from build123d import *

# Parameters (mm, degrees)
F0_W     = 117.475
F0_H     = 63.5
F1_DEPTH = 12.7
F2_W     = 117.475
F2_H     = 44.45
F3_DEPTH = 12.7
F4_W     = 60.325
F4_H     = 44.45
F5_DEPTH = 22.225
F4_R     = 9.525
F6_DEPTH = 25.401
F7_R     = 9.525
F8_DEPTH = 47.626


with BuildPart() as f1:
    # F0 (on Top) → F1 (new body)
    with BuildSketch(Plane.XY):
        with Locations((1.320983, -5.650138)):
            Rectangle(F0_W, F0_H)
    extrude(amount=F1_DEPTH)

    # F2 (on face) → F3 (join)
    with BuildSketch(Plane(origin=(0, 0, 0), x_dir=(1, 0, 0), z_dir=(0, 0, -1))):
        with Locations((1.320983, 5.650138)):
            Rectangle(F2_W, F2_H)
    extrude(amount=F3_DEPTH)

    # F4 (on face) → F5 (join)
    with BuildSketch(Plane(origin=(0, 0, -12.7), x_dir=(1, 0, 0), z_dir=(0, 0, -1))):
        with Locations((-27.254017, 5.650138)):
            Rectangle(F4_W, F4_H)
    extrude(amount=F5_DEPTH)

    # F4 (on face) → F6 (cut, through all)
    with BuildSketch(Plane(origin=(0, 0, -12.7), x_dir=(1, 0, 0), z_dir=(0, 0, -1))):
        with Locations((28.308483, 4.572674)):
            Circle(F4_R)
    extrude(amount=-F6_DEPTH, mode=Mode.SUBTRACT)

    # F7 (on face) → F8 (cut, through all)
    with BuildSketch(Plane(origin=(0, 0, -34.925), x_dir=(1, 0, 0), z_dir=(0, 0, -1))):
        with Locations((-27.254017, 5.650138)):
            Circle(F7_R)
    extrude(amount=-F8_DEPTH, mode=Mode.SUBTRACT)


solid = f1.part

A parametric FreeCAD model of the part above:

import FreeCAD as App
import Part
import Sketcher
from FreeCAD import Vector
Q = App.Units.Quantity

doc = App.newDocument("Part")
body = doc.addObject("PartDesign::Body", "Body")

# Sketch on XY plane
sketch1 = doc.addObject("Sketcher::SketchObject", "Sketch")
body.addObject(sketch1)
sketch1.AttachmentSupport = (doc.XY_Plane, [""])
sketch1.MapMode = "FlatFace"
sketch1.addGeometry([
    Part.LineSegment(Vector(-57, 26, 0), Vector(-57, -37, 0)),
    Part.LineSegment(Vector(-57, -37, 0), Vector(60, -37, 0)),
    Part.LineSegment(Vector(60, -37, 0), Vector(60, 26, 0)),
    Part.LineSegment(Vector(60, 26, 0), Vector(-57, 26, 0)),
], False)
sketch1.addConstraint([
    Sketcher.Constraint("Coincident", 0, 2, 1, 1),
    Sketcher.Constraint("Coincident", 1, 2, 2, 1),
    Sketcher.Constraint("Coincident", 2, 2, 3, 1),
    Sketcher.Constraint("Coincident", 3, 2, 0, 1),
    Sketcher.Constraint("Vertical", 0),
    Sketcher.Constraint("Horizontal", 1),
    Sketcher.Constraint("Vertical", 2),
    Sketcher.Constraint("Horizontal", 3),
    Sketcher.Constraint("DistanceY", 0, 2, 0, 1, Q("2.5 in")),
    Sketcher.Constraint("DistanceX", 1, 1, 1, 2, Q("4.625 in")),
    Sketcher.Constraint("DistanceX", 0, 2, -1, 1, 57.416517),
    Sketcher.Constraint("DistanceY", 0, 2, -1, 1, 37.400138),
])
pad1 = doc.addObject("PartDesign::Pad", "Pad")
body.addObject(pad1)
pad1.Profile = sketch1
pad1.Length = Q("0.5 in")

# Sketch on XY plane
sketch2 = doc.addObject("Sketcher::SketchObject", "Sketch001")
body.addObject(sketch2)
sketch2.AttachmentSupport = (doc.XY_Plane, [""])
sketch2.MapMode = "FlatFace"
sketch2.addGeometry([
    Part.LineSegment(Vector(-57, -28, 0), Vector(-57, 17, 0)),
    Part.LineSegment(Vector(-57, 17, 0), Vector(60, 17, 0)),
    Part.LineSegment(Vector(60, 17, 0), Vector(60, -28, 0)),
    Part.LineSegment(Vector(60, -28, 0), Vector(-57, -28, 0)),
], False)
sketch2.addConstraint([
    Sketcher.Constraint("Coincident", 0, 2, 1, 1),
    Sketcher.Constraint("Coincident", 1, 2, 2, 1),
    Sketcher.Constraint("Coincident", 2, 2, 3, 1),
    Sketcher.Constraint("Coincident", 3, 2, 0, 1),
    Sketcher.Constraint("Vertical", 0),
    Sketcher.Constraint("Horizontal", 1),
    Sketcher.Constraint("Vertical", 2),
    Sketcher.Constraint("Horizontal", 3),
    Sketcher.Constraint("DistanceY", 0, 1, 0, 2, Q("1.75 in")),
    Sketcher.Constraint("DistanceX", 1, 1, 1, 2, Q("4.625 in")),
    Sketcher.Constraint("DistanceY", -1, 1, 0, 2, 16.574862),
    Sketcher.Constraint("DistanceX", 0, 2, -1, 1, 57.416517),
])
pad2 = doc.addObject("PartDesign::Pad", "Pad001")
body.addObject(pad2)
pad2.Profile = sketch2
pad2.Length = Q("0.5 in")
pad2.Reversed = True

# Sketch on XY plane
sketch3 = doc.addObject("Sketcher::SketchObject", "Sketch002")
body.addObject(sketch3)
sketch3.AttachmentSupport = (doc.XY_Plane, [""])
sketch3.MapMode = "FlatFace"
sketch3.AttachmentOffset = App.Placement(Vector(0, 0, -0.5 * 25.4), App.Rotation())
sketch3.addGeometry([
    Part.LineSegment(Vector(-57, -28, 0), Vector(-57, 17, 0)),
    Part.LineSegment(Vector(-57, 17, 0), Vector(3, 17, 0)),
    Part.LineSegment(Vector(3, 17, 0), Vector(3, -28, 0)),
    Part.LineSegment(Vector(3, -28, 0), Vector(-57, -28, 0)),
], False)
sketch3.addConstraint([
    Sketcher.Constraint("Coincident", 0, 2, 1, 1),
    Sketcher.Constraint("Coincident", 1, 2, 2, 1),
    Sketcher.Constraint("Coincident", 2, 2, 3, 1),
    Sketcher.Constraint("Coincident", 3, 2, 0, 1),
    Sketcher.Constraint("Vertical", 0),
    Sketcher.Constraint("Horizontal", 1),
    Sketcher.Constraint("Vertical", 2),
    Sketcher.Constraint("Horizontal", 3),
    Sketcher.Constraint("DistanceY", 0, 1, 0, 2, Q("1.75 in")),
    Sketcher.Constraint("DistanceX", 1, 1, 1, 2, Q("2.375 in")),
    Sketcher.Constraint("DistanceY", -1, 1, 0, 2, 16.574862),
    Sketcher.Constraint("DistanceX", 0, 2, -1, 1, 57.416517),
])
pad3 = doc.addObject("PartDesign::Pad", "Pad002")
body.addObject(pad3)
pad3.Profile = sketch3
pad3.Length = Q("0.875 in")
pad3.Reversed = True

# Sketch on XY plane
sketch4 = doc.addObject("Sketcher::SketchObject", "Sketch003")
body.addObject(sketch4)
sketch4.AttachmentSupport = (doc.XY_Plane, [""])
sketch4.MapMode = "FlatFace"
sketch4.AttachmentOffset = App.Placement(Vector(0, 0, -0.5 * 25.4), App.Rotation())
sketch4.addGeometry(Part.Circle(Vector(28, -5, 0), Vector(0, 0, 1), 10), False)
sketch4.addConstraint([
    Sketcher.Constraint("Diameter", 0, Q("0.75 in")),
    Sketcher.Constraint("DistanceX", -1, 1, 0, 3, 28.308483),
    Sketcher.Constraint("DistanceY", 0, 3, -1, 1, 4.572674),
])
pocket1 = doc.addObject("PartDesign::Pocket", "Pocket")
body.addObject(pocket1)
pocket1.Profile = sketch4
pocket1.Type = "ThroughAll"
pocket1.Reversed = True

# Sketch on XY plane
sketch5 = doc.addObject("Sketcher::SketchObject", "Sketch004")
body.addObject(sketch5)
sketch5.AttachmentSupport = (doc.XY_Plane, [""])
sketch5.MapMode = "FlatFace"
sketch5.AttachmentOffset = App.Placement(Vector(0, 0, -1.375 * 25.4), App.Rotation())
sketch5.addGeometry(Part.Circle(Vector(-27, -6, 0), Vector(0, 0, 1), 10), False)
sketch5.addConstraint([
    Sketcher.Constraint("Diameter", 0, Q("0.75 in")),
    Sketcher.Constraint("DistanceX", 0, 3, -1, 1, 27.254017),
    Sketcher.Constraint("DistanceY", 0, 3, -1, 1, 5.650138),
])
pocket2 = doc.addObject("PartDesign::Pocket", "Pocket001")
body.addObject(pocket2)
pocket2.Profile = sketch5
pocket2.Type = "ThroughAll"
pocket2.Reversed = True

doc.recompute()
